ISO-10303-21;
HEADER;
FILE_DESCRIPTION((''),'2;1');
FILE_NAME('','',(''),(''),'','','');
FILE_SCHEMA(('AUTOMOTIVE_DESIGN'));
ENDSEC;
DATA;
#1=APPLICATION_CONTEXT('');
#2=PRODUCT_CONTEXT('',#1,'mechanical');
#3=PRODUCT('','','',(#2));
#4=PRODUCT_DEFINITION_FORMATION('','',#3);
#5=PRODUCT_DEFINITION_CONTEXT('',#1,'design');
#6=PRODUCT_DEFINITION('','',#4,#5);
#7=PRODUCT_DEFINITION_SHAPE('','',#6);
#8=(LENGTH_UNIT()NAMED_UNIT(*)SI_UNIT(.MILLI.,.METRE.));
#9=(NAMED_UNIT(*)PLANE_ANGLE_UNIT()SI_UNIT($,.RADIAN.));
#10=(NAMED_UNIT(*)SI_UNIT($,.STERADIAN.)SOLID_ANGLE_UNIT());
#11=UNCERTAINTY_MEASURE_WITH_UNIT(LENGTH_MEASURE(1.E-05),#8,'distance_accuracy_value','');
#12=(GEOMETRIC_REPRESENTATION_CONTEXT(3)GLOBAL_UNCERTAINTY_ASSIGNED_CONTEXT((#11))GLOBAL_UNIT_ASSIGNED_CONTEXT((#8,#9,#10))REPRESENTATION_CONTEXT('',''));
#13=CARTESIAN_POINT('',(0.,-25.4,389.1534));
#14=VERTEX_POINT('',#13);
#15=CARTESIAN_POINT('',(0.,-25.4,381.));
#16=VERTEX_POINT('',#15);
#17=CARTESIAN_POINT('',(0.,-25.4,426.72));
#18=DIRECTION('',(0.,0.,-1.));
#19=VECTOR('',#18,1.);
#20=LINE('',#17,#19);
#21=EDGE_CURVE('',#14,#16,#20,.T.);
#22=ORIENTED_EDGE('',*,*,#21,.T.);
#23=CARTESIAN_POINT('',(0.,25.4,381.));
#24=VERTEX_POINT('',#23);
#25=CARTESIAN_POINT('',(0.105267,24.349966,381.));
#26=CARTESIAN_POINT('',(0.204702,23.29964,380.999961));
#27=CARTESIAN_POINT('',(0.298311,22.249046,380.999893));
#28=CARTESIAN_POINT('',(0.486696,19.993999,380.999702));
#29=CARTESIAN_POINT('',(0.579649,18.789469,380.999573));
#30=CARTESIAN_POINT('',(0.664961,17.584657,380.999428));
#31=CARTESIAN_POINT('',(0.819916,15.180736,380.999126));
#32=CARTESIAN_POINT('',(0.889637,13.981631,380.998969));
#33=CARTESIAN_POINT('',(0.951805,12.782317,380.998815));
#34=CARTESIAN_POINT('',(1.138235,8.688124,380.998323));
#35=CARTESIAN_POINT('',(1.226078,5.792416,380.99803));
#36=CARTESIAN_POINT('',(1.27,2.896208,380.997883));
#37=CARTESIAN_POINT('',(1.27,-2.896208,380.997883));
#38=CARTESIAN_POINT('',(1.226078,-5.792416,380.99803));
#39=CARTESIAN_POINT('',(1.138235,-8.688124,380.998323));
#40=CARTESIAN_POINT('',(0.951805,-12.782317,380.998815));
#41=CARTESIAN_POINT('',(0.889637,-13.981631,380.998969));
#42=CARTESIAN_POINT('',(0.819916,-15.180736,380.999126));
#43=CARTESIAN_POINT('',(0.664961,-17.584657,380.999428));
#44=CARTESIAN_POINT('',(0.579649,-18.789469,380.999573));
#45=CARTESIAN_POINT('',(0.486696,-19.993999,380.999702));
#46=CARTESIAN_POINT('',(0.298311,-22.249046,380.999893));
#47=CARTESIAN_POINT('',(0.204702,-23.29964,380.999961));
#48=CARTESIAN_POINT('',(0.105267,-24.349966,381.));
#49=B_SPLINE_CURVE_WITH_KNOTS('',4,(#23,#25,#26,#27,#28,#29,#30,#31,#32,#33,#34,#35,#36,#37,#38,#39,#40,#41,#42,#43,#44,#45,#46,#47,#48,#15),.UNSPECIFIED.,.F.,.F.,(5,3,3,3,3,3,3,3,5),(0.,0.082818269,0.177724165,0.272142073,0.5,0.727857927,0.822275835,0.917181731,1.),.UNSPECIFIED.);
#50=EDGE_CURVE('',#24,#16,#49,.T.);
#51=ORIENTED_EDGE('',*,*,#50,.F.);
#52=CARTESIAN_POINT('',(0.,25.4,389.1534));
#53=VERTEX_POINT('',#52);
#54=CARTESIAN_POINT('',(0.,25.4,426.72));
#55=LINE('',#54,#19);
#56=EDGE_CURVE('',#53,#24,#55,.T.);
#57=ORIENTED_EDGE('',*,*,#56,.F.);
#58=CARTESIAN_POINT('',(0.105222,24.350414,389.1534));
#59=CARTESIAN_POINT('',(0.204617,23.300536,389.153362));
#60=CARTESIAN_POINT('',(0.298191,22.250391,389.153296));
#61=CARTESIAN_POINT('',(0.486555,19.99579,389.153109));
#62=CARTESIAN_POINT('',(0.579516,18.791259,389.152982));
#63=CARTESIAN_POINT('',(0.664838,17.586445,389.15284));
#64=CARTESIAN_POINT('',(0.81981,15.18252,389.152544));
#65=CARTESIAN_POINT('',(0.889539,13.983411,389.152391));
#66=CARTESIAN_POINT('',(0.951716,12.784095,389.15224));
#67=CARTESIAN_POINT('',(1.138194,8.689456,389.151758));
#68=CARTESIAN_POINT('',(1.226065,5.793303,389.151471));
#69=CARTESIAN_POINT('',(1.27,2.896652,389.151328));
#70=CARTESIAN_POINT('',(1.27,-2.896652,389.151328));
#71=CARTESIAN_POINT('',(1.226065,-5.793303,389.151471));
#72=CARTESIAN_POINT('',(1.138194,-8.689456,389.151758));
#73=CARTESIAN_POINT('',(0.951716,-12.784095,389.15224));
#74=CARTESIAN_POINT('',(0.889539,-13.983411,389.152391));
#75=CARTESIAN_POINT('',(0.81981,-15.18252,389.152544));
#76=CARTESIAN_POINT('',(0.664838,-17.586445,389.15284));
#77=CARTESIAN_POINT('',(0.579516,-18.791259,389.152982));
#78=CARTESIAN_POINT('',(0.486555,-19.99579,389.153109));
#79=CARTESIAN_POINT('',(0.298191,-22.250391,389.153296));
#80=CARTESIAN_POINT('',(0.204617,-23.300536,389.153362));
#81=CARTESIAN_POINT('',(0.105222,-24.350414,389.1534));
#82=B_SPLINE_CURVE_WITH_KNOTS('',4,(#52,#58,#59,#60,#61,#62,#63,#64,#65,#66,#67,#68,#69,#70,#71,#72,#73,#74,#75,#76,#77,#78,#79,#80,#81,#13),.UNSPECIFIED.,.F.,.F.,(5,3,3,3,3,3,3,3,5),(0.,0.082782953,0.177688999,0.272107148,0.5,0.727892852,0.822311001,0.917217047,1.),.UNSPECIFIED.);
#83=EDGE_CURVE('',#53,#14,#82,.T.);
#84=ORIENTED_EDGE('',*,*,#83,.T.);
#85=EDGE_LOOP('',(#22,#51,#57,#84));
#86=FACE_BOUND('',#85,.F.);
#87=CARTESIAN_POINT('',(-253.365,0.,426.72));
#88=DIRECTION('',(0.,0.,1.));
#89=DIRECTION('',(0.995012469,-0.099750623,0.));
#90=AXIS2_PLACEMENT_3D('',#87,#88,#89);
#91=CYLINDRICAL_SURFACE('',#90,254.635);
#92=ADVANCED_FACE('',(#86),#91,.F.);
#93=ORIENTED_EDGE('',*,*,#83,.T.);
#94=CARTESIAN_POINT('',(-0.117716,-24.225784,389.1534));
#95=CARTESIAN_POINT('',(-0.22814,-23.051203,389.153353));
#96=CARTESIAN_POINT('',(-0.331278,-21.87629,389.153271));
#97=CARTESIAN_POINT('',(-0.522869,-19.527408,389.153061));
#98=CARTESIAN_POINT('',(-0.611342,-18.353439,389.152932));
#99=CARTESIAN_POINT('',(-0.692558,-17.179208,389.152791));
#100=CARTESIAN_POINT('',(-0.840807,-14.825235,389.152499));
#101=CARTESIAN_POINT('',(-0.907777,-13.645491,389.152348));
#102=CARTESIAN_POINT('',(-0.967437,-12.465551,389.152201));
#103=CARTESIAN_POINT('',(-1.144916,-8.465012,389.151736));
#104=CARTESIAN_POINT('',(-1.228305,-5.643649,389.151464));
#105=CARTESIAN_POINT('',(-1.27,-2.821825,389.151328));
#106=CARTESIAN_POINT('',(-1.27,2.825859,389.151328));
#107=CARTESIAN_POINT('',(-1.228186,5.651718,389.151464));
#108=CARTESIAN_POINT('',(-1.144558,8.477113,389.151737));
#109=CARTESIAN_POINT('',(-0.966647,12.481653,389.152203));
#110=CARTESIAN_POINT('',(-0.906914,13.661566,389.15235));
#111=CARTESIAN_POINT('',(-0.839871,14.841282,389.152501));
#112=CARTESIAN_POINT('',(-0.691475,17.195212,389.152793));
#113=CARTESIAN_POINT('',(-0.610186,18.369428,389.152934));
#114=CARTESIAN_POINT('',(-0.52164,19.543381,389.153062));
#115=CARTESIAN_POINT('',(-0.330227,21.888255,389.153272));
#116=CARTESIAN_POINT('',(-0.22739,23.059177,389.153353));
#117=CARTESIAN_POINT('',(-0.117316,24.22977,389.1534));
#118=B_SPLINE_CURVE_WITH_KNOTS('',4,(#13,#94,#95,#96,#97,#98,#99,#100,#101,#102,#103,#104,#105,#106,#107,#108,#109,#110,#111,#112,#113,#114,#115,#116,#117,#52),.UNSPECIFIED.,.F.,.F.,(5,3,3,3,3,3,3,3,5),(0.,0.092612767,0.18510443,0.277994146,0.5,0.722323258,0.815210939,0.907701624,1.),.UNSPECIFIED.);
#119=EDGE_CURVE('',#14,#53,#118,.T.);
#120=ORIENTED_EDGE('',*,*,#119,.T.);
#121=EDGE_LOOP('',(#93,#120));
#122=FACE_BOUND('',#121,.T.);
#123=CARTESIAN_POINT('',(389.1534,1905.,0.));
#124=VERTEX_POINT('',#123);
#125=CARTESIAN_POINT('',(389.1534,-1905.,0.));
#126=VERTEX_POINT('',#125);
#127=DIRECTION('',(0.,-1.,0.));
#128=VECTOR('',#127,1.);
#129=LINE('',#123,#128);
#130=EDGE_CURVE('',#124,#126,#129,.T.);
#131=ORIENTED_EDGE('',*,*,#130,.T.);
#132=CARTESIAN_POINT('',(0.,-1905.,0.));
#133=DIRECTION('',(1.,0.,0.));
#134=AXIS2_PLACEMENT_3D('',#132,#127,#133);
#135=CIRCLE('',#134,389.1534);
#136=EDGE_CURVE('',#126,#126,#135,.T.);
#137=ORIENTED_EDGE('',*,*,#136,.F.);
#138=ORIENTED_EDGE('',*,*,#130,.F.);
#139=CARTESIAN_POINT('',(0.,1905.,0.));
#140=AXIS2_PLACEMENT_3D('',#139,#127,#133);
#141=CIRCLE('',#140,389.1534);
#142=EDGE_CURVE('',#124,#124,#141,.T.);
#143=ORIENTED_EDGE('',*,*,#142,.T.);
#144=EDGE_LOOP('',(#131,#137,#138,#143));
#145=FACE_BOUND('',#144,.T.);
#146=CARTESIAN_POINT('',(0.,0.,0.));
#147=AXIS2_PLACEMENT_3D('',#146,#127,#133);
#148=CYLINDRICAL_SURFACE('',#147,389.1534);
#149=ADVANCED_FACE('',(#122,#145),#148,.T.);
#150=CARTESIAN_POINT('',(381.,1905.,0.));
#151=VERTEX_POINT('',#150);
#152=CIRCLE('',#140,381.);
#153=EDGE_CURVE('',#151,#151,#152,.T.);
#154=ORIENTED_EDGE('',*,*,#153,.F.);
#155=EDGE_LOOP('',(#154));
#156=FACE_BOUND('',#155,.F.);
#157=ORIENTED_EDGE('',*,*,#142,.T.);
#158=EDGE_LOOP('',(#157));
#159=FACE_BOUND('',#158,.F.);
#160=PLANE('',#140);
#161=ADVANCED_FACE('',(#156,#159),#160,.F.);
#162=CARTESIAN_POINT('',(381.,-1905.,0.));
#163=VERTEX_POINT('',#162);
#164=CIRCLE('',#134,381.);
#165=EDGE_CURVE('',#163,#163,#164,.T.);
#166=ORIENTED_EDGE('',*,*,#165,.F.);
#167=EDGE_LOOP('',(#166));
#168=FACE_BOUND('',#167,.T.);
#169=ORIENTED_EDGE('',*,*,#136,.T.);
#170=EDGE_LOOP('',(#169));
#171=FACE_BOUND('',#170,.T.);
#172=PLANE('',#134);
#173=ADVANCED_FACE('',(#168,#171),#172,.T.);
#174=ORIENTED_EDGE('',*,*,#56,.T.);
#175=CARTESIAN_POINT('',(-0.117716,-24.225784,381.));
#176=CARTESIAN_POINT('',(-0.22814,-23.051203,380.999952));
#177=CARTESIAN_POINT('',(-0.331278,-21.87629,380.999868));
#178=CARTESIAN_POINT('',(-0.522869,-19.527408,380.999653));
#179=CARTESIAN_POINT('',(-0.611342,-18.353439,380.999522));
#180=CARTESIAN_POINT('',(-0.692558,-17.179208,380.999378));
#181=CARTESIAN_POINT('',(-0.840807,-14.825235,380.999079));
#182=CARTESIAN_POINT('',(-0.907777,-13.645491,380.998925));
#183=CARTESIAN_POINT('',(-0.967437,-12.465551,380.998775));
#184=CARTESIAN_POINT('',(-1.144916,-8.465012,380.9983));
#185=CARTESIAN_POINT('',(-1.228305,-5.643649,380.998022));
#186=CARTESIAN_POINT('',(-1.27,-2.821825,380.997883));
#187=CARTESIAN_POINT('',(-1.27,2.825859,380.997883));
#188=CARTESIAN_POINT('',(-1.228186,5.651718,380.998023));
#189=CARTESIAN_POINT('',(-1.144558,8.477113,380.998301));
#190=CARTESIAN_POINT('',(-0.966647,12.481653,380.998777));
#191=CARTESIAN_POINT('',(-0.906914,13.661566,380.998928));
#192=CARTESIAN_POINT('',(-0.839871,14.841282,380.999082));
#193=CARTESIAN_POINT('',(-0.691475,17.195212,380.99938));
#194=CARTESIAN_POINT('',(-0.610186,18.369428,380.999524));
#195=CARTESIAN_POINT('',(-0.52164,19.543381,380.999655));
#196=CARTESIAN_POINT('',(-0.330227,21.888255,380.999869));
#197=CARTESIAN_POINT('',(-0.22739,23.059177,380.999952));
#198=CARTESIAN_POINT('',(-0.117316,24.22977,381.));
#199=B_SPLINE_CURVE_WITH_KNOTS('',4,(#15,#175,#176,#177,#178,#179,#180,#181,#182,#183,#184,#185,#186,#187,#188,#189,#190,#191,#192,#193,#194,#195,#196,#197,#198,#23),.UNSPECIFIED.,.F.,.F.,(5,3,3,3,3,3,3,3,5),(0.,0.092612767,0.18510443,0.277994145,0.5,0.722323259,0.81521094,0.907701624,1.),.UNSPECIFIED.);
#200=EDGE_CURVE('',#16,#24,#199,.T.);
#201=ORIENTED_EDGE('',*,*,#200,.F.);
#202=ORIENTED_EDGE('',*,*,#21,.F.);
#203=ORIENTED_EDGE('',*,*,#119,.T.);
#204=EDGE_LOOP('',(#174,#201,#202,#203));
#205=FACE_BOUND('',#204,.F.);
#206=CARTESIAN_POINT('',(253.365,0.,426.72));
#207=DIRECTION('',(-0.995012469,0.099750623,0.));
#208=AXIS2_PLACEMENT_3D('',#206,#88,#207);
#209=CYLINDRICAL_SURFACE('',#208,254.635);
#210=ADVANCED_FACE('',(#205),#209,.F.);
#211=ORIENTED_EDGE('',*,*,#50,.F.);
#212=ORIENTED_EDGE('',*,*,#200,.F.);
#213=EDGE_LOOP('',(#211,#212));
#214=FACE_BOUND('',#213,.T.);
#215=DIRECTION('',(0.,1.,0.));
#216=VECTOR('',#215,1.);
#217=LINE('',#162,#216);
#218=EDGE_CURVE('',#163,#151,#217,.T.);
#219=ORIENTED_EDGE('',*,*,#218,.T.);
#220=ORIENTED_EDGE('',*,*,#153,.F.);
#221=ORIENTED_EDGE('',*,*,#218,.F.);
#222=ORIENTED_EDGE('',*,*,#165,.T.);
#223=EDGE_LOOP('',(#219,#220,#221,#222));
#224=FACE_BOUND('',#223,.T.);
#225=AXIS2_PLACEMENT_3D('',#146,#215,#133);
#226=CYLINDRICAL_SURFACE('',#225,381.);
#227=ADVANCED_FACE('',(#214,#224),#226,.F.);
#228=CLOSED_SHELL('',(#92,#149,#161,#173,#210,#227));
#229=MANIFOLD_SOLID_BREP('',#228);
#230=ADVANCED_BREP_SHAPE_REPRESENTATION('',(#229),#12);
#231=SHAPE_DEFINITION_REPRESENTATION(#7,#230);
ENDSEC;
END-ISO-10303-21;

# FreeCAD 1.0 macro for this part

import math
import FreeCAD as App
import Part
import Sketcher
Q = App.Units.Quantity

doc = App.newDocument("Part")
body = doc.addObject("PartDesign::Body", "Body")

sketch1 = body.newObject("Sketcher::SketchObject", "Sketch")
sketch1.AttachmentSupport = (doc.getObject("XZ_Plane"), [""])
sketch1.MapMode = "FlatFace"
sketch1.addGeometry([
    Part.Circle(App.Vector(0, 0, 0), App.Vector(0, 0, 1), 389),
    Part.Circle(App.Vector(0, 0, 0), App.Vector(0, 0, 1), 381),
], False)
sketch1.addConstraint([
    Sketcher.Constraint("Coincident", 0, 3, -1, 1),
    Sketcher.Constraint("Coincident", 1, 3, -1, 1),
    Sketcher.Constraint("Diameter", 1, Q("30 in")),
    Sketcher.Constraint("Diameter", 0, Q("30.642 in")),
])
pad1 = body.newObject("PartDesign::Pad", "Pad")
pad1.Profile = sketch1
pad1.Length = Q("150 in")
pad1.Midplane = True

sketch2 = body.newObject("Sketcher::SketchObject", "Sketch001")
sketch2.AttachmentSupport = (doc.getObject("XY_Plane"), [""])
sketch2.MapMode = "FlatFace"
sketch2.AttachmentOffset = App.Placement(App.Vector(0, 0, 16.8 * 25.4), App.Rotation())
sketch2.addGeometry([
    Part.ArcOfCircle(Part.Circle(App.Vector(253, 0, 0), App.Vector(0, 0, 1), 255), math.radians(174.28), math.radians(185.72)),
    Part.ArcOfCircle(Part.Circle(App.Vector(-253, 0, 0), App.Vector(0, 0, 1), 255), math.radians(-5.72), math.radians(5.72)),
], False)
sketch2.addConstraint([
    Sketcher.Constraint("Coincident", 0, 1, 1, 2),
    Sketcher.Constraint("Coincident", 1, 1, 0, 2),
    Sketcher.Constraint("Equal", 0, 1),
    Sketcher.Constraint("Symmetric", 0, 3, 1, 3, -1, 1),
    Sketcher.Constraint("PointOnObject", 0, 3, -1),
    Sketcher.Constraint("DistanceY", -1, 1, 0, 1, Q("1 in")),
    Sketcher.Constraint("Radius", 0, Q("10.025 in")),
])
pocket1 = body.newObject("PartDesign::Pocket", "Pocket")
pocket1.Profile = sketch2
pocket1.Length = Q("4.97 in")

doc.recompute()
